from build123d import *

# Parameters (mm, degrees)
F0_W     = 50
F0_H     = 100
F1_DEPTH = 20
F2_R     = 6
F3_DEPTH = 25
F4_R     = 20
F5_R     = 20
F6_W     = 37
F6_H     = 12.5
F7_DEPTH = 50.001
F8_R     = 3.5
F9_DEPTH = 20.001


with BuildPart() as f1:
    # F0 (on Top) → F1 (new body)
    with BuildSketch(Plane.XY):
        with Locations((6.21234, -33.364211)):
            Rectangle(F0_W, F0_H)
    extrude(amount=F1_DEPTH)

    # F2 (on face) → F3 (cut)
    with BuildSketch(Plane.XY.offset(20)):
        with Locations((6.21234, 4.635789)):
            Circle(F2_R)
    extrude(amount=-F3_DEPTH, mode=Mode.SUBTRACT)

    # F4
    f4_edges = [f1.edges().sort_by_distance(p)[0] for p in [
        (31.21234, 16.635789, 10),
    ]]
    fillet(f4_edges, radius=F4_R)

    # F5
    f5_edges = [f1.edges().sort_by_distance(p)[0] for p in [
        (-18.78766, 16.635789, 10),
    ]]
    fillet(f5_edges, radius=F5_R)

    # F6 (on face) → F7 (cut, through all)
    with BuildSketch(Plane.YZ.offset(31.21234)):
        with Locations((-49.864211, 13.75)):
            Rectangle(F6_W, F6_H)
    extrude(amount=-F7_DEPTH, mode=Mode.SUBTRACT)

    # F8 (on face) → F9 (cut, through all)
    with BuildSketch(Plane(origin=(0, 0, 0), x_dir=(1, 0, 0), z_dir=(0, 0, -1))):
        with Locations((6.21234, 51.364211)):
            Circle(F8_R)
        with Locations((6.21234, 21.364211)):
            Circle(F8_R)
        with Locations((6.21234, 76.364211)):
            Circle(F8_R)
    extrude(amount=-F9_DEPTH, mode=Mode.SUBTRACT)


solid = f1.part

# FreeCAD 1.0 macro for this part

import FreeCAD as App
import Part
import Sketcher
Q = App.Units.Quantity


def edges_at(feature, points):
    """Names of the edges that pass closest to the given points."""
    edges = feature.Shape.Edges
    near = lambda p: min(range(len(edges)), key=lambda i: edges[i].distToShape(Part.Vertex(*p))[0])
    return sorted({f"Edge{near(p) + 1}" for p in points})

doc = App.newDocument("Part")
body = doc.addObject("PartDesign::Body", "Body")

# Sketch on XY plane
sketch1 = doc.addObject("Sketcher::SketchObject", "Sketch")
body.addObject(sketch1)
sketch1.AttachmentSupport = (doc.XY_Plane, [""])
sketch1.MapMode = "FlatFace"
sketch1.addGeometry([
    Part.LineSegment(App.Vector(-19, 17, 0), App.Vector(-19, -83, 0)),
    Part.LineSegment(App.Vector(-19, -83, 0), App.Vector(31, -83, 0)),
    Part.LineSegment(App.Vector(31, -83, 0), App.Vector(31, 17, 0)),
    Part.LineSegment(App.Vector(31, 17, 0), App.Vector(-19, 17, 0)),
], False)
sketch1.addConstraint([
    Sketcher.Constraint("Coincident", 0, 2, 1, 1),
    Sketcher.Constraint("Coincident", 1, 2, 2, 1),
    Sketcher.Constraint("Coincident", 2, 2, 3, 1),
    Sketcher.Constraint("Coincident", 3, 2, 0, 1),
    Sketcher.Constraint("Vertical", 0),
    Sketcher.Constraint("Horizontal", 1),
    Sketcher.Constraint("Vertical", 2),
    Sketcher.Constraint("Horizontal", 3),
    Sketcher.Constraint("DistanceX", 1, 1, 1, 2, Q("50 mm")),
    Sketcher.Constraint("DistanceY", 0, 2, 0, 1, Q("100 mm")),
    Sketcher.Constraint("DistanceX", 0, 2, -1, 1, Q("18.78766 mm")),
    Sketcher.Constraint("DistanceY", 0, 2, -1, 1, Q("83.364211 mm")),
])
pad1 = doc.addObject("PartDesign::Pad", "Pad")
body.addObject(pad1)
pad1.Profile = sketch1
pad1.Length = 20

# Sketch on XY plane
sketch2 = doc.addObject("Sketcher::SketchObject", "Sketch001")
body.addObject(sketch2)
sketch2.AttachmentSupport = (doc.XY_Plane, [""])
sketch2.MapMode = "FlatFace"
sketch2.AttachmentOffset = App.Placement(App.Vector(0, 0, 20), App.Rotation())
sketch2.addGeometry(Part.Circle(App.Vector(6, 5, 0), App.Vector(0, 0, 1), 6), False)
sketch2.addConstraint([
    Sketcher.Constraint("Diameter", 0, Q("12 mm")),
    Sketcher.Constraint("DistanceX", -1, 1, 0, 3, Q("6.21234 mm")),
    Sketcher.Constraint("DistanceY", -1, 1, 0, 3, Q("4.635789 mm")),
])
pocket1 = doc.addObject("PartDesign::Pocket", "Pocket")
body.addObject(pocket1)
pocket1.Profile = sketch2
pocket1.Length = 25
doc.recompute()

fillet = doc.addObject("PartDesign::Fillet", "Fillet")
body.addObject(fillet)
fillet.Base = (pocket1, edges_at(pocket1, [(31.212, 16.636, 10)]))
fillet.Radius = 20
doc.recompute()

fillet2 = doc.addObject("PartDesign::Fillet", "Fillet001")
body.addObject(fillet2)
fillet2.Base = (fillet, edges_at(fillet, [(-18.788, 16.636, 10)]))
fillet2.Radius = 20

# Sketch on YZ plane
sketch3 = doc.addObject("Sketcher::SketchObject", "Sketch002")
body.addObject(sketch3)
sketch3.AttachmentSupport = (doc.YZ_Plane, [""])
sketch3.MapMode = "FlatFace"
sketch3.AttachmentOffset = App.Placement(App.Vector(0, 0, 31.21234), App.Rotation())
sketch3.addGeometry([
    Part.LineSegment(App.Vector(-68, 20, 0), App.Vector(-68, 8, 0)),
    Part.LineSegment(App.Vector(-68, 8, 0), App.Vector(-31, 8, 0)),
    Part.LineSegment(App.Vector(-31, 8, 0), App.Vector(-31, 20, 0)),
    Part.LineSegment(App.Vector(-31, 20, 0), App.Vector(-68, 20, 0)),
], False)
sketch3.addConstraint([
    Sketcher.Constraint("Coincident", 0, 2, 1, 1),
    Sketcher.Constraint("Coincident", 1, 2, 2, 1),
    Sketcher.Constraint("Coincident", 2, 2, 3, 1),
    Sketcher.Constraint("Coincident", 3, 2, 0, 1),
    Sketcher.Constraint("Vertical", 0),
    Sketcher.Constraint("Horizontal", 1),
    Sketcher.Constraint("Vertical", 2),
    Sketcher.Constraint("Horizontal", 3),
    Sketcher.Constraint("DistanceX", 1, 1, 1, 2, Q("37 mm")),
    Sketcher.Constraint("DistanceY", 0, 2, 0, 1, Q("12.5 mm")),
    Sketcher.Constraint("DistanceY", -1, 1, 2, 2, Q("20 mm")),
    Sketcher.Constraint("DistanceX", 0, 2, -1, 1, Q("68.364211 mm")),
])
pocket2 = doc.addObject("PartDesign::Pocket", "Pocket001")
body.addObject(pocket2)
pocket2.Profile = sketch3
pocket2.Type = "ThroughAll"

# Sketch on XY plane
sketch4 = doc.addObject("Sketcher::SketchObject", "Sketch003")
body.addObject(sketch4)
sketch4.AttachmentSupport = (doc.XY_Plane, [""])
sketch4.MapMode = "FlatFace"
sketch4.addGeometry([
    Part.Circle(App.Vector(6.2, -51.4, 0), App.Vector(0, 0, 1), 3.5),
    Part.Circle(App.Vector(6.2, -21.4, 0), App.Vector(0, 0, 1), 3.5),
    Part.Circle(App.Vector(6.2, -76.4, 0), App.Vector(0, 0, 1), 3.5),
], False)
sketch4.addConstraint([
    Sketcher.Constraint("Equal", 0, 1),
    Sketcher.Constraint("Equal", 1, 2),
    Sketcher.Constraint("Vertical", 0, 3, 1, 3),
    Sketcher.Constraint("Vertical", 1, 3, 2, 3),
    Sketcher.Constraint("Diameter", 0, Q("7 mm")),
    Sketcher.Constraint("DistanceY", 0, 3, 1, 3, Q("30 mm")),
    Sketcher.Constraint("DistanceY", 2, 3, 0, 3, Q("25 mm")),
    Sketcher.Constraint("DistanceX", -1, 1, 0, 3, Q("6.21234 mm")),
    Sketcher.Constraint("DistanceY", 0, 3, -1, 1, Q("51.364211 mm")),
])
pocket3 = doc.addObject("PartDesign::Pocket", "Pocket002")
body.addObject(pocket3)
pocket3.Profile = sketch4
pocket3.Type = "ThroughAll"
pocket3.Reversed = True

doc.recompute()
